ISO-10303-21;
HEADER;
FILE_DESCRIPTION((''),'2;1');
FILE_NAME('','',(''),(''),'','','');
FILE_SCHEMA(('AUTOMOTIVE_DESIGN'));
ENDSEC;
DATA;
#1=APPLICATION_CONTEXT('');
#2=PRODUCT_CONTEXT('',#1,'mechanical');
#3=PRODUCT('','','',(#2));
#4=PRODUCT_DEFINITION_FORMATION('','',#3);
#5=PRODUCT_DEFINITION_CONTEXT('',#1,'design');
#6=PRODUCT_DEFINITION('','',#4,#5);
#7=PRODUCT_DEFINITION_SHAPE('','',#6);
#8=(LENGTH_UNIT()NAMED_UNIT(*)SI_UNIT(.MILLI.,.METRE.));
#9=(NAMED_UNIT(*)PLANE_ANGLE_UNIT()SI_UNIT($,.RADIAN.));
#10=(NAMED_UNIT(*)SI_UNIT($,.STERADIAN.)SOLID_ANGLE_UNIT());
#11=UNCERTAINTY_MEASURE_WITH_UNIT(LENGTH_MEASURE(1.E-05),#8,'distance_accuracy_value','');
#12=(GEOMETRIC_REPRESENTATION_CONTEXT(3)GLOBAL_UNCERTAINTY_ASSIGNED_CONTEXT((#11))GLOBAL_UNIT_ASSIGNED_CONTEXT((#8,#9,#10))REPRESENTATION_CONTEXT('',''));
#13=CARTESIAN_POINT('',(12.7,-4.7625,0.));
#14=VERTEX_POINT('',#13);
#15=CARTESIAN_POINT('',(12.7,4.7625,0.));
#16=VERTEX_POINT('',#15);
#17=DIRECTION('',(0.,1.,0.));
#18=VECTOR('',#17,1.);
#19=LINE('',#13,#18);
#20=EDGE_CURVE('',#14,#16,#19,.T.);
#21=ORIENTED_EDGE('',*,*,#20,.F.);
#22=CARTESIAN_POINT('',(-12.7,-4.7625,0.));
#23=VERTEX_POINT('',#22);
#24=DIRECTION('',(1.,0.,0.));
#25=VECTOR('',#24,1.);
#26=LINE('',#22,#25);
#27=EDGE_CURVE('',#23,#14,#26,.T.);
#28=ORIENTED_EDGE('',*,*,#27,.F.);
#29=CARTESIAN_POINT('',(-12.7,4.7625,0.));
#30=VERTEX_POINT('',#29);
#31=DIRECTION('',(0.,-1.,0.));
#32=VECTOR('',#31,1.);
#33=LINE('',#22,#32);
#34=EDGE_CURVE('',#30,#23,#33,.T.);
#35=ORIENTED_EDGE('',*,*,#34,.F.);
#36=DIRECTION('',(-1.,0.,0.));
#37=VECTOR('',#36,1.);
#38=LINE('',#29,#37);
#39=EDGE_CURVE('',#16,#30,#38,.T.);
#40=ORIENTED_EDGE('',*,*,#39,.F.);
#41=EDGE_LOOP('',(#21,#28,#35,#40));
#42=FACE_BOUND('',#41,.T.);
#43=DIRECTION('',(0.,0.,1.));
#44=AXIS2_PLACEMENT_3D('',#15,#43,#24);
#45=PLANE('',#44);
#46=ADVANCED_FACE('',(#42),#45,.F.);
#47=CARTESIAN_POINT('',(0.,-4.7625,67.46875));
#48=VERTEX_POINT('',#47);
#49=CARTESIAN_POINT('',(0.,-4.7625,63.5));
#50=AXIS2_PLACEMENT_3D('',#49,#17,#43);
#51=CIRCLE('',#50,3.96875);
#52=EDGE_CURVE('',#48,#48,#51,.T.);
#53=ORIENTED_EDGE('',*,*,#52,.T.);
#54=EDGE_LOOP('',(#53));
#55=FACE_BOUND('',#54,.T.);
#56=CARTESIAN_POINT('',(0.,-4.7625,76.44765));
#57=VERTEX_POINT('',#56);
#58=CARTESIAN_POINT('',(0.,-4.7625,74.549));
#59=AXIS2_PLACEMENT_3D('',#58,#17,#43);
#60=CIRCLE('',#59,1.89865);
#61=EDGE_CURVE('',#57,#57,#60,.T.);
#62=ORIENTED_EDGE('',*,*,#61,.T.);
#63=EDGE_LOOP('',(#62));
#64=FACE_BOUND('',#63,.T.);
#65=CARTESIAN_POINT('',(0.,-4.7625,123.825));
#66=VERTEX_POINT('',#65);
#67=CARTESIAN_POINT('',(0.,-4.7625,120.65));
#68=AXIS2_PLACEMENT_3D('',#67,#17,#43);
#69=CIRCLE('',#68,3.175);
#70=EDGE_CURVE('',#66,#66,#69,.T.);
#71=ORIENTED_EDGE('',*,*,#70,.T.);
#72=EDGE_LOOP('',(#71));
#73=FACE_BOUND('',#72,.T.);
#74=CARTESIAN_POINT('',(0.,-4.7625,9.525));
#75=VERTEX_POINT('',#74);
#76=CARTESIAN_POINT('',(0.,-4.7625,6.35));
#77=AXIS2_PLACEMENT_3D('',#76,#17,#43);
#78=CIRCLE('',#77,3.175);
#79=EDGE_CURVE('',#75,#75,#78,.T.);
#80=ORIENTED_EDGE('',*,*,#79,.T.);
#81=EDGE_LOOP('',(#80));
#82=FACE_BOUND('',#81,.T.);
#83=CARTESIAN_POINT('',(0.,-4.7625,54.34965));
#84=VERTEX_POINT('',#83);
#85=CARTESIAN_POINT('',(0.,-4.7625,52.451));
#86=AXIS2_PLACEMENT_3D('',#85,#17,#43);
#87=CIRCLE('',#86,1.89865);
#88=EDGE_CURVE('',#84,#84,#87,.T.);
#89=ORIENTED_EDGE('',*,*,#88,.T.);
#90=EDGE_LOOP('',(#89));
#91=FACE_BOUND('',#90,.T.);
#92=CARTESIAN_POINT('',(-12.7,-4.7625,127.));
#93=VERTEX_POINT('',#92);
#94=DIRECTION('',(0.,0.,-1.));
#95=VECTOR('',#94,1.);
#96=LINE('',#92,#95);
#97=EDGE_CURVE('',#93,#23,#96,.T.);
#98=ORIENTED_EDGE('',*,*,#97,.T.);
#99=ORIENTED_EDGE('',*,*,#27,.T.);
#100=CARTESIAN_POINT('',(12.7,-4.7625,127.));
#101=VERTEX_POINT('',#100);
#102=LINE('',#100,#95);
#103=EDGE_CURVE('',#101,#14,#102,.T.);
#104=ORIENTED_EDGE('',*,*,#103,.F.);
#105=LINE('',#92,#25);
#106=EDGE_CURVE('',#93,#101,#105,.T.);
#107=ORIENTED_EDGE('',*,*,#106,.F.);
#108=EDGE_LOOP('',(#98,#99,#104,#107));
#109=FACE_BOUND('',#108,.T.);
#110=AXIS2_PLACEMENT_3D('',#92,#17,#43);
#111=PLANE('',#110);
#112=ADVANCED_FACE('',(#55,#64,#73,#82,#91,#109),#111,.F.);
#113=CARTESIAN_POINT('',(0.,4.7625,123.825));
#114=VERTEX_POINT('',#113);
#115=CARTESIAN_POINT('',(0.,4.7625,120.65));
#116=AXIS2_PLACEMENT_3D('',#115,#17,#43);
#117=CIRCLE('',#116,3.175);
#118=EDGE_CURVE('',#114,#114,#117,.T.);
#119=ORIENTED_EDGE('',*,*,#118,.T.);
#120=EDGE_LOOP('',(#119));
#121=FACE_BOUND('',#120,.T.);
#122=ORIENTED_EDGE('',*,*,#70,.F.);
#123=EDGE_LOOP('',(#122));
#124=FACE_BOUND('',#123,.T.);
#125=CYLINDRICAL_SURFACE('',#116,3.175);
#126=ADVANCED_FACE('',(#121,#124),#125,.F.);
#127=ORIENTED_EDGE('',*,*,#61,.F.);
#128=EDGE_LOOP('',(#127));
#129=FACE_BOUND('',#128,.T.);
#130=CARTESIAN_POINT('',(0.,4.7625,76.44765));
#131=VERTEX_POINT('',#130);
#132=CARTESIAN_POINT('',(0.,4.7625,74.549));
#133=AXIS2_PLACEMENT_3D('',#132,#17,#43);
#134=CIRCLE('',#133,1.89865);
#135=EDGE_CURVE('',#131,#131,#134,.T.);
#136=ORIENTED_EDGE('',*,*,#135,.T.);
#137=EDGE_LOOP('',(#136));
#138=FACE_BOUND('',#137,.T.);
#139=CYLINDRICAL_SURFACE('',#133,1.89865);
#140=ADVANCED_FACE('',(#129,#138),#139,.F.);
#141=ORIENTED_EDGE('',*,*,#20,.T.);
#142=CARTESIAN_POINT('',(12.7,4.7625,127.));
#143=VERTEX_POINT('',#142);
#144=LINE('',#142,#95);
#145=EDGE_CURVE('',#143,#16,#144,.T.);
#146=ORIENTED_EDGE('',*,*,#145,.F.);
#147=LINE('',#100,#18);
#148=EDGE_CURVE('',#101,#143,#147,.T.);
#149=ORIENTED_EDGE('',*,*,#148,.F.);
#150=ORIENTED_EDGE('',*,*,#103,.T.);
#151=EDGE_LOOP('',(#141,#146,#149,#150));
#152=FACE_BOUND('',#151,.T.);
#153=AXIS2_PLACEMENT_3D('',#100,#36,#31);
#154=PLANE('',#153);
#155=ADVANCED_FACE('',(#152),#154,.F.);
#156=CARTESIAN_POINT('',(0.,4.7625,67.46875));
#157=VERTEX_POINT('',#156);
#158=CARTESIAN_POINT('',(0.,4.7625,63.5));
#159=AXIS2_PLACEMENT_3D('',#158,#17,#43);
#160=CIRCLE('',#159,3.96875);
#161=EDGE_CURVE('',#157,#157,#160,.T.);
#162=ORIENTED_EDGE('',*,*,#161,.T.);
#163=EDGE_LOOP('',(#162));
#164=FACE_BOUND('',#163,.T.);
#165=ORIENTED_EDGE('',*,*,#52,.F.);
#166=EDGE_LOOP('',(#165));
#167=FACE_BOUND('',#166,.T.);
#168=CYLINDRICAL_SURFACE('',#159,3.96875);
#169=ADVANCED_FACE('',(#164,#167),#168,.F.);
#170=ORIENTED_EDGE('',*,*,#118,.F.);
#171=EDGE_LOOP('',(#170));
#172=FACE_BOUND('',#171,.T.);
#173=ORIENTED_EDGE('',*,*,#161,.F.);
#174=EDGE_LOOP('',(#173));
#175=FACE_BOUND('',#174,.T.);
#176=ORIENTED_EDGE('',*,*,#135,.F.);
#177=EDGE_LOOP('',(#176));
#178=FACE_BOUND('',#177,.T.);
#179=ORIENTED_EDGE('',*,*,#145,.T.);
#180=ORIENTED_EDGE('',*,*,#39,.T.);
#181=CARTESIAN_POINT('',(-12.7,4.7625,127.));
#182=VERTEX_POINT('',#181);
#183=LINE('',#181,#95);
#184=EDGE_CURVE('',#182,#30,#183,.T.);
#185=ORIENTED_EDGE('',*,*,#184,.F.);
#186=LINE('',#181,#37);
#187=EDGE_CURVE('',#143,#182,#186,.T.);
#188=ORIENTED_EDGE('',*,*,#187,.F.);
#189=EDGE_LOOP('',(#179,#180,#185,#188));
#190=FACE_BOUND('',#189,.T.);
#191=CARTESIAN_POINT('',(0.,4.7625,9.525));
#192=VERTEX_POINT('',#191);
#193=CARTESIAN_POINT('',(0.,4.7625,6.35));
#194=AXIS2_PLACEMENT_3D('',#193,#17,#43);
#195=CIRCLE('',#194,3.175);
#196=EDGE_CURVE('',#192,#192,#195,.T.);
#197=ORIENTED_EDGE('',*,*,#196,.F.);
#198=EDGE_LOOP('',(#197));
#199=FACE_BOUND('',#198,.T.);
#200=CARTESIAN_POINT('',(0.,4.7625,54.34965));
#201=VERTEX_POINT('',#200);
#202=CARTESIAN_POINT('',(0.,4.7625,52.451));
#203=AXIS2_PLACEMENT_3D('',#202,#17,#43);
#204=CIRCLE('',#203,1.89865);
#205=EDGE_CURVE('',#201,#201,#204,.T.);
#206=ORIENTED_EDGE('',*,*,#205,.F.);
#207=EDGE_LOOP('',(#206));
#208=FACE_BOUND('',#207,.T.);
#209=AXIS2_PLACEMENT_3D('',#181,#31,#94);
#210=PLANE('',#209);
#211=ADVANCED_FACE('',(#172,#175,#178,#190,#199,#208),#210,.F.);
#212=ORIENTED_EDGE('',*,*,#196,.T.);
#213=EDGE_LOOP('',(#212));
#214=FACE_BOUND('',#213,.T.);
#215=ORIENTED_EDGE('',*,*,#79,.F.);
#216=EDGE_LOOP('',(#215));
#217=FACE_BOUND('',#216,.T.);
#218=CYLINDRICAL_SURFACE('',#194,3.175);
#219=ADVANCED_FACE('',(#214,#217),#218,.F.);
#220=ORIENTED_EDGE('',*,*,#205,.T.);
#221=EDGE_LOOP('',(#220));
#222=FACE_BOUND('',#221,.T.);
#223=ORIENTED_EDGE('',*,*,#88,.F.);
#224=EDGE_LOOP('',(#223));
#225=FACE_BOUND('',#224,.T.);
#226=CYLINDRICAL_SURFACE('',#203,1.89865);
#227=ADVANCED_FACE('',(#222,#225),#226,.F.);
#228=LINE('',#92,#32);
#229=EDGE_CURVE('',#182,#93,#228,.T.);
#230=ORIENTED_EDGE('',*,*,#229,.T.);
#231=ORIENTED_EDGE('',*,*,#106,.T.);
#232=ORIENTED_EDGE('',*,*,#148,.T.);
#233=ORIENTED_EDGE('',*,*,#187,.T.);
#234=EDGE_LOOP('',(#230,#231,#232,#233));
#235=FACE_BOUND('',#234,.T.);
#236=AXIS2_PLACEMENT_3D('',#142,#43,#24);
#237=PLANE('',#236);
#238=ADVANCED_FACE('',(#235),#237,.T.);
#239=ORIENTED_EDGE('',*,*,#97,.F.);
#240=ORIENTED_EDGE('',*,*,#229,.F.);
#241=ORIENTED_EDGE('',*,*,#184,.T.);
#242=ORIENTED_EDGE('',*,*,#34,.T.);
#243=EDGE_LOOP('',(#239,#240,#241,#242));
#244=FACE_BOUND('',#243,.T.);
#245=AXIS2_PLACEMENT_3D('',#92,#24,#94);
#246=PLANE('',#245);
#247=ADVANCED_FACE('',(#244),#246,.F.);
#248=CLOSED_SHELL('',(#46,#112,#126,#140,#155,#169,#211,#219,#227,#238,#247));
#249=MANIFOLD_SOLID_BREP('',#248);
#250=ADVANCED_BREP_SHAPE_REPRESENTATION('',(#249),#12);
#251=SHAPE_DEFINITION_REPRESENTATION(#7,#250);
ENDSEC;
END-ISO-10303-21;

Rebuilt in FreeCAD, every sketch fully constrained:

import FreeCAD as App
import Part
import Sketcher
Q = App.Units.Quantity

doc = App.newDocument("Part")
body = doc.addObject("PartDesign::Body", "Body")

# Sketch on XY plane
sketch1 = body.newObject("Sketcher::SketchObject", "Sketch")
sketch1.AttachmentSupport = (doc.getObject("XY_Plane"), [""])
sketch1.MapMode = "FlatFace"
sketch1.addGeometry([
    Part.LineSegment(App.Vector(-13, 5, 0), App.Vector(-13, -5, 0)),
    Part.LineSegment(App.Vector(-13, -5, 0), App.Vector(13, -5, 0)),
    Part.LineSegment(App.Vector(13, -5, 0), App.Vector(13, 5, 0)),
    Part.LineSegment(App.Vector(13, 5, 0), App.Vector(-13, 5, 0)),
], False)
sketch1.addConstraint([
    Sketcher.Constraint("Coincident", 0, 2, 1, 1),
    Sketcher.Constraint("Coincident", 1, 2, 2, 1),
    Sketcher.Constraint("Coincident", 2, 2, 3, 1),
    Sketcher.Constraint("Coincident", 3, 2, 0, 1),
    Sketcher.Constraint("Vertical", 0),
    Sketcher.Constraint("Horizontal", 1),
    Sketcher.Constraint("Vertical", 2),
    Sketcher.Constraint("Horizontal", 3),
    Sketcher.Constraint("Symmetric", 0, 2, 2, 2, -1, 1),
    Sketcher.Constraint("DistanceX", 1, 1, 1, 2, Q("1 in")),
    Sketcher.Constraint("DistanceY", 0, 2, 0, 1, Q("0.375 in")),
])
pad1 = body.newObject("PartDesign::Pad", "Pad")
pad1.Profile = sketch1
pad1.Length = Q("5 in")

# Sketch on XZ plane
sketch2 = body.newObject("Sketcher::SketchObject", "Sketch001")
sketch2.AttachmentSupport = (doc.getObject("XZ_Plane"), [""])
sketch2.MapMode = "FlatFace"
sketch2.AttachmentOffset = App.Placement(App.Vector(0, 0, -0.1875 * 25.4), App.Rotation())
sketch2.addGeometry([
    Part.Circle(App.Vector(0, 6.3, 0), App.Vector(0, 0, 1), 3.2),
    Part.Circle(App.Vector(0, 120.7, 0), App.Vector(0, 0, 1), 3.2),
], False)
sketch2.addConstraint([
    Sketcher.Constraint("Equal", 0, 1),
    Sketcher.Constraint("PointOnObject", 0, 3, -2),
    Sketcher.Constraint("PointOnObject", 1, 3, -2),
    Sketcher.Constraint("Diameter", 0, Q("0.25 in")),
    Sketcher.Constraint("DistanceY", 0, 3, 1, 3, Q("4.5 in")),
    Sketcher.Constraint("DistanceY", -1, 1, 0, 3, Q("0.25 in")),
])
doc.recompute()
hole = body.newObject("PartDesign::Hole", "Hole")
hole.Profile = sketch2
hole.ThreadType = "None"
hole.Diameter = Q("0.25 in")
hole.DepthType = "Dimension"
hole.Depth = Q("0.5 in")
hole.DrillPoint = "Angled"
hole.DrillPointAngle = 118
hole.Reversed = True

# Sketch on XZ plane
sketch3 = body.newObject("Sketcher::SketchObject", "Sketch002")
sketch3.AttachmentSupport = (doc.getObject("XZ_Plane"), [""])
sketch3.MapMode = "FlatFace"
sketch3.AttachmentOffset = App.Placement(App.Vector(0, 0, -0.1875 * 25.4), App.Rotation())
sketch3.addGeometry(Part.Circle(App.Vector(0, 63.5, 0), App.Vector(0, 0, 1), 4), False)
sketch3.addConstraint([
    Sketcher.Constraint("PointOnObject", 0, 3, -2),
    Sketcher.Constraint("Diameter", 0, Q("0.3125 in")),
    Sketcher.Constraint("DistanceY", -1, 1, 0, 3, Q("2.5 in")),
])
doc.recompute()
hole2 = body.newObject("PartDesign::Hole", "Hole001")
hole2.Profile = sketch3
hole2.ThreadType = "None"
hole2.Diameter = Q("0.3125 in")
hole2.DepthType = "Dimension"
hole2.Depth = Q("0.5 in")
hole2.DrillPoint = "Angled"
hole2.DrillPointAngle = 118
hole2.Reversed = True

# Sketch on YZ plane
sketch4 = body.newObject("Sketcher::SketchObject", "Sketch003")
sketch4.AttachmentSupport = (doc.getObject("YZ_Plane"), [""])
sketch4.MapMode = "FlatFace"
sketch4.addGeometry([
    Part.LineSegment(App.Vector(-9.1, 74.5, 0), App.Vector(4.8, 74.5, 0)),
    Part.LineSegment(App.Vector(4.8, 74.5, 0), App.Vector(4.8, 76.4, 0)),
    Part.LineSegment(App.Vector(4.8, 76.4, 0), App.Vector(-7.9, 76.4, 0)),
    Part.LineSegment(App.Vector(-7.9, 76.4, 0), App.Vector(-9.1, 74.5, 0)),
], False)
sketch4.addGeometry(Part.LineSegment(App.Vector(4.8, 74.5, 0), App.Vector(-9.1, 74.5, 0)), True)  # axis
sketch4.addConstraint([
    Sketcher.Constraint("Coincident", 0, 2, 1, 1),
    Sketcher.Constraint("Coincident", 1, 2, 2, 1),
    Sketcher.Constraint("Coincident", 2, 2, 3, 1),
    Sketcher.Constraint("Coincident", 3, 2, 0, 1),
    Sketcher.Constraint("Horizontal", 0),
    Sketcher.Constraint("Vertical", 1),
    Sketcher.Constraint("Horizontal", 2),
    Sketcher.Constraint("Horizontal", 4),
    Sketcher.Constraint("Coincident", 4, 1, 0, 2),
    Sketcher.Constraint("Equal", 0, 4),
    Sketcher.Constraint("DistanceX", 2, 2, 2, 1, Q("0.5 in")),
    Sketcher.Constraint("Angle", 3, Q("-121 deg")),
    Sketcher.Constraint("DistanceX", -1, 1, 0, 2, Q("0.1875 in")),
    Sketcher.Constraint("DistanceY", -1, 1, 0, 2, Q("2.935 in")),
    Sketcher.Constraint("DistanceY", 1, 1, 1, 2, 1.89865),
])
groove = body.newObject("PartDesign::Groove", "Groove")
groove.Profile = sketch4
groove.ReferenceAxis = (sketch4, ["Axis0"])
groove.Angle = 360
doc.recompute()

datumline = body.newObject("PartDesign::Line", "DatumLine")
datumline.Placement = App.Placement(App.Vector(0, 0, 63.5), App.Rotation(App.Vector(0, 0, 1), App.Vector(0, 1, 0)))
polarpattern = body.newObject("PartDesign::PolarPattern", "PolarPattern")
polarpattern.Originals = [groove]
polarpattern.Axis = (datumline, [""])
polarpattern.Angle = 360
polarpattern.Occurrences = 2
body.Tip = polarpattern

doc.recompute()
